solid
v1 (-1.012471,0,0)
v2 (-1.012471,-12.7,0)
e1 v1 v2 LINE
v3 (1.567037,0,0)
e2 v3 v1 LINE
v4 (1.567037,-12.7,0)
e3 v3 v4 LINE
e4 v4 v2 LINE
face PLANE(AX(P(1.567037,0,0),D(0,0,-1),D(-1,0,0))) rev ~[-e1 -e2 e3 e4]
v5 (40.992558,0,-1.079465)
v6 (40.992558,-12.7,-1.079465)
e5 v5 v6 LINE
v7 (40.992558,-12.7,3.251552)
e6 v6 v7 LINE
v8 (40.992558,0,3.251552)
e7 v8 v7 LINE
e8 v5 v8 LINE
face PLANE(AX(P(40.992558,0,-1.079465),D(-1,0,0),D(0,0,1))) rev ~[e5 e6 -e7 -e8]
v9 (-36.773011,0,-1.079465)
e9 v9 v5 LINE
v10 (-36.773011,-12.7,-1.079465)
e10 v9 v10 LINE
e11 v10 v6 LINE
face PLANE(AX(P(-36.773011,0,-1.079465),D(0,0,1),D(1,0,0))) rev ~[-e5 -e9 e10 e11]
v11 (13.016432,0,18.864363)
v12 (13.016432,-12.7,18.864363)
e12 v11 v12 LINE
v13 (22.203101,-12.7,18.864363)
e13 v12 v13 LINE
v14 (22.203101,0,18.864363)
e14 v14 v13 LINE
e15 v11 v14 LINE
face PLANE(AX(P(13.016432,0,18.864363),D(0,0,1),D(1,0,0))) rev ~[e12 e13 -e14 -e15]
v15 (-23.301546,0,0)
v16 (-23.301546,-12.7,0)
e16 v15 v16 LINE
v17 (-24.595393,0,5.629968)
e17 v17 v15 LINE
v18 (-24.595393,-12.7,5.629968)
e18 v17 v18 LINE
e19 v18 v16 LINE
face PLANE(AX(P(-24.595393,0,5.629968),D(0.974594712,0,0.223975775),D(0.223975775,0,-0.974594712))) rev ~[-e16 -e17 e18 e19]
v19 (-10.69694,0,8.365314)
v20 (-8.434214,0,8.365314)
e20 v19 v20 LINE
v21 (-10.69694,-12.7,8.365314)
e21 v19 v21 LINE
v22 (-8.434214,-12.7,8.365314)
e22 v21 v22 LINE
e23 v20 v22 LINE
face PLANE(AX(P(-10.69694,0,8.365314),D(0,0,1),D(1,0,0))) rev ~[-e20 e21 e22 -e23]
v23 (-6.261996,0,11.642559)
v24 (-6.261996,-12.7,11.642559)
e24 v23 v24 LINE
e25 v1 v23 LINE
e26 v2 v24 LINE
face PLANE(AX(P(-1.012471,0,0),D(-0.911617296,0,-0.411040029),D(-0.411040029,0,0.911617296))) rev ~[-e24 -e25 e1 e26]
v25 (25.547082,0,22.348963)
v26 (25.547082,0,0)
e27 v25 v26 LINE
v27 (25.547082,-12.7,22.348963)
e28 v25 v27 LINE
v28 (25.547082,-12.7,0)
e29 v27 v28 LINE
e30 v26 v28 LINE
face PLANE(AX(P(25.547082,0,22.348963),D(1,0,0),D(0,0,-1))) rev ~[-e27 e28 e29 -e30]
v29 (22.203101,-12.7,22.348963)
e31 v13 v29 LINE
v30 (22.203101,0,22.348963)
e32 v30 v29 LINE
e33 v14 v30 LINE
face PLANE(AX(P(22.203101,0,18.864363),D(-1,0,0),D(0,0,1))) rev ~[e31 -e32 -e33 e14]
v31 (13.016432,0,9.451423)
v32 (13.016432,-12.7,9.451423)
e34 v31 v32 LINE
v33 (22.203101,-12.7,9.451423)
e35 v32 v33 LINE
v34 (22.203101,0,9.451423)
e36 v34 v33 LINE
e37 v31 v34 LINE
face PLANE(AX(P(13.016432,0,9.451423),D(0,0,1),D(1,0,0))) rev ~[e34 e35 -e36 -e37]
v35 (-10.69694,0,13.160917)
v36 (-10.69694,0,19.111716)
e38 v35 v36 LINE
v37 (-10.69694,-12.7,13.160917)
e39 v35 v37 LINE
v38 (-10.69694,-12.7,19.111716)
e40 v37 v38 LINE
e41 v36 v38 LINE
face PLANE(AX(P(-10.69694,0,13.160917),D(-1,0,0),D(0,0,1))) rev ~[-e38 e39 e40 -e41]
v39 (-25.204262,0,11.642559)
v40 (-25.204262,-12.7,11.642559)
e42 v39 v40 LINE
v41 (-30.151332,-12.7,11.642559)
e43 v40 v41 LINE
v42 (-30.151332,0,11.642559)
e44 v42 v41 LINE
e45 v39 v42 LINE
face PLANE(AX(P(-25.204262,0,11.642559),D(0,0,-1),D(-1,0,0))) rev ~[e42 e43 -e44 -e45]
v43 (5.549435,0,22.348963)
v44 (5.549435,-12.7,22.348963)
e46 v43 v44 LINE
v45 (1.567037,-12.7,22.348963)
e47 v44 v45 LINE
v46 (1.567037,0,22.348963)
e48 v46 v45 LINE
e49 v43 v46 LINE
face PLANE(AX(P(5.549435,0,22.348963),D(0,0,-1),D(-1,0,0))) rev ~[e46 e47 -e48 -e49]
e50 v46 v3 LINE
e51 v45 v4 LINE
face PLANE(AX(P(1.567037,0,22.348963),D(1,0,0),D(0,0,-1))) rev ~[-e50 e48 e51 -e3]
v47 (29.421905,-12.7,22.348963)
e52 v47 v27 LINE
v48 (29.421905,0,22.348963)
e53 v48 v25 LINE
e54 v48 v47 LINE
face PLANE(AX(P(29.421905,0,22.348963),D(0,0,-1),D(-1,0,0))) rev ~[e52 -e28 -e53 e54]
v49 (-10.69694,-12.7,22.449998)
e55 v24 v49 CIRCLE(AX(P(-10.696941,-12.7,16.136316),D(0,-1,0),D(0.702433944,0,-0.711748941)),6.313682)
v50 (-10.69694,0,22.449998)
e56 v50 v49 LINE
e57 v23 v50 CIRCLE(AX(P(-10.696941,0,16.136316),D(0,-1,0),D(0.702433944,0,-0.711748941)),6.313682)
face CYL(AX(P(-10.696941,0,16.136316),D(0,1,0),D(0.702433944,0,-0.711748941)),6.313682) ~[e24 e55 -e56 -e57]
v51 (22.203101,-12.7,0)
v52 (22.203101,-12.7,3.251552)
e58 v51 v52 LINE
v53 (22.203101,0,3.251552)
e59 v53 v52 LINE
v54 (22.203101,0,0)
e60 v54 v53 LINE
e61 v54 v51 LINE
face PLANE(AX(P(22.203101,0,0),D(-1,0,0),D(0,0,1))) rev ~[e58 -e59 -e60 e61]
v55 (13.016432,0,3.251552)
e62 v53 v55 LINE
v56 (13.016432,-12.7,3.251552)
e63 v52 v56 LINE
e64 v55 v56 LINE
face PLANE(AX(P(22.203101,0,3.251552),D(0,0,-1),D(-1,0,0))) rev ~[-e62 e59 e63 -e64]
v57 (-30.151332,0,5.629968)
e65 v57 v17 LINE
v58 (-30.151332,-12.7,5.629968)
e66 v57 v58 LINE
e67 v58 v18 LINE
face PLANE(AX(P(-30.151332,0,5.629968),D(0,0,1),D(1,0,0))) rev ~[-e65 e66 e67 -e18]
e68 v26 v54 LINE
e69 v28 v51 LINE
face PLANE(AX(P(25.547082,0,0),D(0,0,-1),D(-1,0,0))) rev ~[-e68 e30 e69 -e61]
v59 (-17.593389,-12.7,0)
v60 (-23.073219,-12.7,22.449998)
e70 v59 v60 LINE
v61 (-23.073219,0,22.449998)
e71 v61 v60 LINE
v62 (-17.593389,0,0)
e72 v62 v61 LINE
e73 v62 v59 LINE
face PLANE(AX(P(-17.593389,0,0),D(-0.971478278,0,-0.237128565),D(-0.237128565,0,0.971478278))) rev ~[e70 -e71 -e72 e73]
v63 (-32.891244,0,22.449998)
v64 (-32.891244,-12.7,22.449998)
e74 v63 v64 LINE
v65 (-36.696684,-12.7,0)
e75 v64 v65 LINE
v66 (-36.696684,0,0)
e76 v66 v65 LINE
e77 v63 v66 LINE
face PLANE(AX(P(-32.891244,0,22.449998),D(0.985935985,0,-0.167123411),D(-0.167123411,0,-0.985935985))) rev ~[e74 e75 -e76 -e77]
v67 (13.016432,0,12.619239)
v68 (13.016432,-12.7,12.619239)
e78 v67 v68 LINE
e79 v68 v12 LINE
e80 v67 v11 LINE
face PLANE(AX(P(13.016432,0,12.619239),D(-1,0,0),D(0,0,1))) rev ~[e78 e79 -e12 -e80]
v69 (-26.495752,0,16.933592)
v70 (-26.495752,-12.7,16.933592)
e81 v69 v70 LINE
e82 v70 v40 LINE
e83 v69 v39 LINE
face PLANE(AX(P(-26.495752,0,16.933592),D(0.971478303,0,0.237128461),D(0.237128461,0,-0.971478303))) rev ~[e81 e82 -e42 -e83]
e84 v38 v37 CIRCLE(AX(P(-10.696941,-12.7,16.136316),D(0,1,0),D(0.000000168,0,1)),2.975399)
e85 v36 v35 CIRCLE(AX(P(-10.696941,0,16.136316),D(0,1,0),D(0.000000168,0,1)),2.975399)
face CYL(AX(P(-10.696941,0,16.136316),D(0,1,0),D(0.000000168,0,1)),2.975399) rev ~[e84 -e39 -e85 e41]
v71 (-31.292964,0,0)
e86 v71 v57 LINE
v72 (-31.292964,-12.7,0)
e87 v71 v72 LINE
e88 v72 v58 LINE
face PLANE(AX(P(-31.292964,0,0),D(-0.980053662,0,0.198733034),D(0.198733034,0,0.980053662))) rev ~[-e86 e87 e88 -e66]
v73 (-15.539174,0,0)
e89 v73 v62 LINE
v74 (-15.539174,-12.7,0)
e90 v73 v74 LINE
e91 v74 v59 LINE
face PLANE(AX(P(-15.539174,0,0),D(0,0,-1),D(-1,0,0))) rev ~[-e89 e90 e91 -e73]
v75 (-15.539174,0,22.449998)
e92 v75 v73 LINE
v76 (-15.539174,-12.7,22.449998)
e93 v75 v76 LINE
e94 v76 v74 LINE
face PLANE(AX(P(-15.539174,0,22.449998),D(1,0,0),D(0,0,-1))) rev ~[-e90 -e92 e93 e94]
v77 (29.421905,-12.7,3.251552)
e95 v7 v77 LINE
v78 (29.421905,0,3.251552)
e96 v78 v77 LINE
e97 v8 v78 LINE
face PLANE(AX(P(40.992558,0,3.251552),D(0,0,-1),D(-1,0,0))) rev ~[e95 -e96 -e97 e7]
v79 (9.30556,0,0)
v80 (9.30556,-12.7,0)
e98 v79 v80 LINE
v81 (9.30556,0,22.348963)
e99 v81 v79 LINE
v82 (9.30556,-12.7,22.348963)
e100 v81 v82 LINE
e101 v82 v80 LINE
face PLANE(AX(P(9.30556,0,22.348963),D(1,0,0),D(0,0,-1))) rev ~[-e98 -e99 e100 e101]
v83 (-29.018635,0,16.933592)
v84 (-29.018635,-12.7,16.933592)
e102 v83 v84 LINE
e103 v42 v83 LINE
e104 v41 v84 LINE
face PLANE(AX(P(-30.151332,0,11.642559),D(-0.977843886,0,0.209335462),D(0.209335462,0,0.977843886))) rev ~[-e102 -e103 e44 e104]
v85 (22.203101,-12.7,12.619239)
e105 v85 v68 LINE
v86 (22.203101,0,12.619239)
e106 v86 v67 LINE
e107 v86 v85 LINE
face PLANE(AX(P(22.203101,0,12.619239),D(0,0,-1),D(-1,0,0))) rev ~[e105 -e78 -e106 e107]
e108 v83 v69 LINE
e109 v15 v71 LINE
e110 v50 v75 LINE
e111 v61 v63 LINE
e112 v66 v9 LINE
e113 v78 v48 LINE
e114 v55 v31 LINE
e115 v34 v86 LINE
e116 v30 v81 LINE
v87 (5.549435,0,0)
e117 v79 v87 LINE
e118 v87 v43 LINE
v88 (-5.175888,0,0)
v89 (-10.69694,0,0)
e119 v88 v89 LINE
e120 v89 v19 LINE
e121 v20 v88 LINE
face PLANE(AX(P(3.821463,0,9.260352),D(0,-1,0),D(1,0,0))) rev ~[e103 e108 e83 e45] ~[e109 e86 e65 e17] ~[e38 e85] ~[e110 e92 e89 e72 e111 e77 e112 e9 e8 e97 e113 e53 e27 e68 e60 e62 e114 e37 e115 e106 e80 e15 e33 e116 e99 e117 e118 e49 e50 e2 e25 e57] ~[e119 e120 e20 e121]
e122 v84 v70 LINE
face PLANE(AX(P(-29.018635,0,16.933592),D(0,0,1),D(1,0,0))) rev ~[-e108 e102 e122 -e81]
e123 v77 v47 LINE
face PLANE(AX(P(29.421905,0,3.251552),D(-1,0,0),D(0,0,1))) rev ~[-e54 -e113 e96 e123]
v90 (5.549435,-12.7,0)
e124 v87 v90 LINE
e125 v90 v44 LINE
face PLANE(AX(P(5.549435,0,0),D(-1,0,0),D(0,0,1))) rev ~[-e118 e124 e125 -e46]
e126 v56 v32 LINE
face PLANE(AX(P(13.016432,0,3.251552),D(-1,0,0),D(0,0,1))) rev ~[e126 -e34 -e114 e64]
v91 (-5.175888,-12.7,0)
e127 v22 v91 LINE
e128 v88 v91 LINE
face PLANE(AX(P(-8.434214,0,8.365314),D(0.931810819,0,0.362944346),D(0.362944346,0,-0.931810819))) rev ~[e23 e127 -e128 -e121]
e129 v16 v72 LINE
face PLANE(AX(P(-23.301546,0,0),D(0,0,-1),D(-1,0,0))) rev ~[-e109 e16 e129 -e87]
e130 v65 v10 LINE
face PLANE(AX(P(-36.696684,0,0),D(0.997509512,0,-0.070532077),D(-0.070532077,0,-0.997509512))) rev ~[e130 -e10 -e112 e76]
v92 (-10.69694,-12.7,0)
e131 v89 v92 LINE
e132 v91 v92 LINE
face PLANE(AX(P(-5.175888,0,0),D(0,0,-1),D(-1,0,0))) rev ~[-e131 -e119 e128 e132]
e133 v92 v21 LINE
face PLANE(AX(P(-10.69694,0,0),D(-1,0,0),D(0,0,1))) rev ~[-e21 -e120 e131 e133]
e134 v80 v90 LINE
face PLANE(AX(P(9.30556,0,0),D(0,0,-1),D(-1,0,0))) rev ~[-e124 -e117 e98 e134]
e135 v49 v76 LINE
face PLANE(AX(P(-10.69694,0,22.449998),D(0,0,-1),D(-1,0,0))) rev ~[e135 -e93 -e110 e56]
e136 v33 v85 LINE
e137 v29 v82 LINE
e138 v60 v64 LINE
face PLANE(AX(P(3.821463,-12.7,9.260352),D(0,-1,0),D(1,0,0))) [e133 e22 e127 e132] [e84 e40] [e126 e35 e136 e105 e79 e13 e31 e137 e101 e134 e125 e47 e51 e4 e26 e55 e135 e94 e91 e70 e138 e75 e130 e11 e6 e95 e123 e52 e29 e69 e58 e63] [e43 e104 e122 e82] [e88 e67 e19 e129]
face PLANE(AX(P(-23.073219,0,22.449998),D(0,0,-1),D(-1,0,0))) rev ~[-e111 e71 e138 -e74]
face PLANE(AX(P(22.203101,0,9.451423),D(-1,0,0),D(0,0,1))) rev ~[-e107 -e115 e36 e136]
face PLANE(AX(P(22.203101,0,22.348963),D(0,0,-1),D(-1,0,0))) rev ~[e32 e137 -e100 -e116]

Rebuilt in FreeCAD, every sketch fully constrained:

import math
import FreeCAD as App
import Part
import Sketcher
from FreeCAD import Vector
Q = App.Units.Quantity

doc = App.newDocument("Part")
body = doc.addObject("PartDesign::Body", "Body")

# Sketch on XZ plane
sketch1 = body.newObject("Sketcher::SketchObject", "Sketch")
sketch1.AttachmentSupport = (doc.getObject("XZ_Plane"), [""])
sketch1.MapMode = "FlatFace"
sketch1.addGeometry([
    Part.LineSegment(Vector(-32.9, 22.4, 0), Vector(-36.7, 0, 0)),  # 0
    Part.LineSegment(Vector(-36.7, 0, 0), Vector(-36.8, -1.1, 0)),  # 1
    Part.LineSegment(Vector(-36.8, -1.1, 0), Vector(41, -1.1, 0)),  # 2
    Part.LineSegment(Vector(41, -1.1, 0), Vector(41, 3.3, 0)),  # 3
    Part.LineSegment(Vector(41, 3.3, 0), Vector(29.4, 3.3, 0)),  # 4
    Part.LineSegment(Vector(29.4, 3.3, 0), Vector(29.4, 22.3, 0)),  # 5
    Part.LineSegment(Vector(29.4, 22.3, 0), Vector(25.5, 22.3, 0)),  # 6
    Part.LineSegment(Vector(25.5, 22.3, 0), Vector(25.5, 0, 0)),  # 7
    Part.LineSegment(Vector(25.5, 0, 0), Vector(22.2, 0, 0)),  # 8
    Part.LineSegment(Vector(22.2, 0, 0), Vector(22.2, 3.3, 0)),  # 9
    Part.LineSegment(Vector(22.2, 3.3, 0), Vector(13, 3.3, 0)),  # 10
    Part.LineSegment(Vector(13, 3.3, 0), Vector(13, 9.5, 0)),  # 11
    Part.LineSegment(Vector(13, 9.5, 0), Vector(22.2, 9.5, 0)),  # 12
    Part.LineSegment(Vector(22.2, 9.5, 0), Vector(22.2, 12.6, 0)),  # 13
    Part.LineSegment(Vector(22.2, 12.6, 0), Vector(13, 12.6, 0)),  # 14
    Part.LineSegment(Vector(13, 12.6, 0), Vector(13, 18.9, 0)),  # 15
    Part.LineSegment(Vector(13, 18.9, 0), Vector(22.2, 18.9, 0)),  # 16
    Part.LineSegment(Vector(22.2, 18.9, 0), Vector(22.2, 22.3, 0)),  # 17
    Part.LineSegment(Vector(22.2, 22.3, 0), Vector(9.3, 22.3, 0)),  # 18
    Part.LineSegment(Vector(9.3, 22.3, 0), Vector(9.3, 0, 0)),  # 19
    Part.LineSegment(Vector(9.3, 0, 0), Vector(5.5, 0, 0)),  # 20
    Part.LineSegment(Vector(5.5, 0, 0), Vector(5.5, 22.3, 0)),  # 21
    Part.LineSegment(Vector(5.5, 22.3, 0), Vector(1.6, 22.3, 0)),  # 22
    Part.LineSegment(Vector(1.6, 22.3, 0), Vector(1.6, 0, 0)),  # 23
    Part.LineSegment(Vector(1.6, 0, 0), Vector(-1, 0, 0)),  # 24
    Part.LineSegment(Vector(-1, 0, 0), Vector(-6.3, 11.6, 0)),  # 25
    Part.ArcOfCircle(Part.Circle(Vector(-10.7, 16.1, 0), Vector(0, 0, 1), 6.3), math.radians(-45), math.radians(90)),  # 26
    Part.LineSegment(Vector(-10.7, 22.4, 0), Vector(-15.5, 22.4, 0)),  # 27
    Part.LineSegment(Vector(-15.5, 22.4, 0), Vector(-15.5, 0, 0)),  # 28
    Part.LineSegment(Vector(-15.5, 0, 0), Vector(-17.6, 0, 0)),  # 29
    Part.LineSegment(Vector(-17.6, 0, 0), Vector(-23.1, 22.4, 0)),  # 30
    Part.LineSegment(Vector(-23.1, 22.4, 0), Vector(-32.9, 22.4, 0)),  # 31
    Part.LineSegment(Vector(-30.2, 5.6, 0), Vector(-24.6, 5.6, 0)),  # 32
    Part.LineSegment(Vector(-24.6, 5.6, 0), Vector(-23.3, 0, 0)),  # 33
    Part.LineSegment(Vector(-23.3, 0, 0), Vector(-31.3, 0, 0)),  # 34
    Part.LineSegment(Vector(-31.3, 0, 0), Vector(-30.2, 5.6, 0)),  # 35
    Part.LineSegment(Vector(-8.4, 8.4, 0), Vector(-5.2, 0, 0)),  # 36
    Part.LineSegment(Vector(-5.2, 0, 0), Vector(-10.7, 0, 0)),  # 37
    Part.LineSegment(Vector(-10.7, 0, 0), Vector(-10.7, 8.4, 0)),  # 38
    Part.LineSegment(Vector(-10.7, 8.4, 0), Vector(-8.4, 8.4, 0)),  # 39
    Part.LineSegment(Vector(-26.5, 16.9, 0), Vector(-25.2, 11.6, 0)),  # 40
    Part.LineSegment(Vector(-25.2, 11.6, 0), Vector(-30.2, 11.6, 0)),  # 41
    Part.LineSegment(Vector(-30.2, 11.6, 0), Vector(-29, 16.9, 0)),  # 42
    Part.LineSegment(Vector(-29, 16.9, 0), Vector(-26.5, 16.9, 0)),  # 43
    Part.LineSegment(Vector(-10.7, 13.2, 0), Vector(-10.7, 19.1, 0)),  # 44
    Part.ArcOfCircle(Part.Circle(Vector(-10.7, 16.1, 0), Vector(0, 0, 1), 3), math.radians(-90), math.radians(90)),  # 45
], False)
sketch1.addConstraint([
    Sketcher.Constraint("Coincident", 0, 2, 1, 1),
    Sketcher.Constraint("Coincident", 1, 2, 2, 1),
    Sketcher.Constraint("Coincident", 2, 2, 3, 1),
    Sketcher.Constraint("Coincident", 3, 2, 4, 1),
    Sketcher.Constraint("Coincident", 4, 2, 5, 1),
    Sketcher.Constraint("Coincident", 5, 2, 6, 1),
    Sketcher.Constraint("Coincident", 6, 2, 7, 1),
    Sketcher.Constraint("Coincident", 7, 2, 8, 1),
    Sketcher.Constraint("Coincident", 8, 2, 9, 1),
    Sketcher.Constraint("Coincident", 9, 2, 10, 1),
    Sketcher.Constraint("Coincident", 10, 2, 11, 1),
    Sketcher.Constraint("Coincident", 11, 2, 12, 1),
    Sketcher.Constraint("Coincident", 12, 2, 13, 1),
    Sketcher.Constraint("Coincident", 13, 2, 14, 1),
    Sketcher.Constraint("Coincident", 14, 2, 15, 1),
    Sketcher.Constraint("Coincident", 15, 2, 16, 1),
    Sketcher.Constraint("Coincident", 16, 2, 17, 1),
    Sketcher.Constraint("Coincident", 17, 2, 18, 1),
    Sketcher.Constraint("Coincident", 18, 2, 19, 1),
    Sketcher.Constraint("Coincident", 19, 2, 20, 1),
    Sketcher.Constraint("Coincident", 20, 2, 21, 1),
    Sketcher.Constraint("Coincident", 21, 2, 22, 1),
    Sketcher.Constraint("Coincident", 22, 2, 23, 1),
    Sketcher.Constraint("Coincident", 23, 2, 24, 1),
    Sketcher.Constraint("Coincident", 24, 2, 25, 1),
    Sketcher.Constraint("Coincident", 25, 2, 26, 1),
    Sketcher.Constraint("Tangent", 26, 2, 27, 1),
    Sketcher.Constraint("Coincident", 27, 2, 28, 1),
    Sketcher.Constraint("Coincident", 28, 2, 29, 1),
    Sketcher.Constraint("Coincident", 29, 2, 30, 1),
    Sketcher.Constraint("Coincident", 30, 2, 31, 1),
    Sketcher.Constraint("Coincident", 31, 2, 0, 1),
    Sketcher.Constraint("Coincident", 32, 2, 33, 1),
    Sketcher.Constraint("Coincident", 33, 2, 34, 1),
    Sketcher.Constraint("Coincident", 34, 2, 35, 1),
    Sketcher.Constraint("Coincident", 35, 2, 32, 1),
    Sketcher.Constraint("Coincident", 36, 2, 37, 1),
    Sketcher.Constraint("Coincident", 37, 2, 38, 1),
    Sketcher.Constraint("Coincident", 38, 2, 39, 1),
    Sketcher.Constraint("Coincident", 39, 2, 36, 1),
    Sketcher.Constraint("Coincident", 40, 2, 41, 1),
    Sketcher.Constraint("Coincident", 41, 2, 42, 1),
    Sketcher.Constraint("Coincident", 42, 2, 43, 1),
    Sketcher.Constraint("Coincident", 43, 2, 40, 1),
    Sketcher.Constraint("Coincident", 44, 1, 45, 1),
    Sketcher.Constraint("Coincident", 45, 2, 44, 2),
    Sketcher.Constraint("Horizontal", 2),
    Sketcher.Constraint("Vertical", 3),
    Sketcher.Constraint("Horizontal", 4),
    Sketcher.Constraint("Vertical", 5),
    Sketcher.Constraint("Horizontal", 6),
    Sketcher.Constraint("Vertical", 7),
    Sketcher.Constraint("Horizontal", 8),
    Sketcher.Constraint("Vertical", 9),
    Sketcher.Constraint("Horizontal", 10),
    Sketcher.Constraint("Vertical", 11),
    Sketcher.Constraint("Horizontal", 12),
    Sketcher.Constraint("Vertical", 13),
    Sketcher.Constraint("Horizontal", 14),
    Sketcher.Constraint("Vertical", 15),
    Sketcher.Constraint("Horizontal", 16),
    Sketcher.Constraint("Vertical", 17),
    Sketcher.Constraint("Horizontal", 18),
    Sketcher.Constraint("Vertical", 19),
    Sketcher.Constraint("Horizontal", 20),
    Sketcher.Constraint("Vertical", 21),
    Sketcher.Constraint("Horizontal", 22),
    Sketcher.Constraint("Vertical", 23),
    Sketcher.Constraint("Horizontal", 24),
    Sketcher.Constraint("Horizontal", 27),
    Sketcher.Constraint("Vertical", 28),
    Sketcher.Constraint("Horizontal", 29),
    Sketcher.Constraint("Horizontal", 31),
    Sketcher.Constraint("Horizontal", 32),
    Sketcher.Constraint("Horizontal", 34),
    Sketcher.Constraint("Horizontal", 37),
    Sketcher.Constraint("Vertical", 38),
    Sketcher.Constraint("Horizontal", 39),
    Sketcher.Constraint("Horizontal", 41),
    Sketcher.Constraint("Horizontal", 43),
    Sketcher.Constraint("Vertical", 44),
    Sketcher.Constraint("Coincident", 45, 3, 26, 3),
    Sketcher.Constraint("PointOnObject", 0, 2, -1),
    Sketcher.Constraint("PointOnObject", 7, 2, -1),
    Sketcher.Constraint("PointOnObject", 19, 2, -1),
    Sketcher.Constraint("PointOnObject", 23, 2, -1),
    Sketcher.Constraint("PointOnObject", 28, 2, -1),
    Sketcher.Constraint("PointOnObject", 33, 2, -1),
    Sketcher.Constraint("PointOnObject", 36, 2, -1),
    Sketcher.Constraint("Parallel", 30, 40),
    Sketcher.Constraint("Horizontal", 4, 2, 9, 2),
    Sketcher.Constraint("Horizontal", 6, 2, 17, 2),
    Sketcher.Constraint("Horizontal", 18, 2, 21, 2),
    Sketcher.Constraint("Horizontal", 27, 2, 30, 2),
    Sketcher.Constraint("Horizontal", 25, 2, 40, 2),
    Sketcher.Constraint("Vertical", 9, 2, 12, 2),
    Sketcher.Constraint("Vertical", 11, 2, 14, 2),
    Sketcher.Constraint("Vertical", 13, 2, 16, 2),
    Sketcher.Constraint("Vertical", 26, 2, 37, 2),
    Sketcher.Constraint("Vertical", 35, 2, 41, 2),
    Sketcher.Constraint("Vertical", 38, 2, 44, 1),
    Sketcher.Constraint("Radius", 45, Q("2.975399 mm")),
    Sketcher.Constraint("DistanceY", 17, 1, 17, 2, Q("3.4846 mm")),
    Sketcher.Constraint("DistanceY", 28, 2, 28, 1, Q("22.449998 mm")),
    Sketcher.Constraint("Radius", 26, Q("6.313682 mm")),
    Sketcher.Constraint("DistanceX", 2, 1, 2, 2, Q("77.765569 mm")),
    Sketcher.Constraint("DistanceX", 8, 2, 8, 1, Q("3.343981 mm")),
    Sketcher.Constraint("DistanceX", 10, 2, 10, 1, Q("9.186669 mm")),
    Sketcher.Constraint("DistanceX", 18, 2, 18, 1, Q("12.897541 mm")),
    Sketcher.Constraint("DistanceX", 32, 1, 32, 2, Q("5.555939 mm")),
    Sketcher.Constraint("DistanceX", 34, 2, 34, 1, Q("7.991418 mm")),
    Sketcher.Constraint("DistanceX", 41, 2, 41, 1, Q("4.94707 mm")),
    Sketcher.Constraint("DistanceY", 5, 1, 5, 2, Q("19.097411 mm")),
    Sketcher.Constraint("DistanceY", 11, 1, 11, 2, Q("6.199871 mm")),
    Sketcher.Constraint("DistanceX", -1, 1, 8, 2, Q("22.203101 mm")),
    Sketcher.Constraint("DistanceX", 26, 3, 2, 2, Q("51.689499 mm")),
    Sketcher.Constraint("DistanceY", 38, 2, 26, 3, Q("7.771002 mm")),
    Sketcher.Constraint("Distance", 0, Q("22.770239 mm")),
    Sketcher.Constraint("Distance", 1, Q("1.08216 mm")),
    Sketcher.Constraint("Distance", 30, Q("23.10911 mm")),
    Sketcher.Constraint("Distance", 35, Q("5.744551 mm")),
    Sketcher.Constraint("Distance", 36, Q("8.977481 mm")),
    Sketcher.Constraint("DistanceX", 4, 2, 4, 1, Q("11.570653 mm")),
    Sketcher.Constraint("DistanceX", 6, 2, 6, 1, Q("3.874823 mm")),
    Sketcher.Constraint("DistanceX", 20, 2, 20, 1, Q("3.756125 mm")),
    Sketcher.Constraint("DistanceX", 22, 2, 22, 1, Q("3.982398 mm")),
    Sketcher.Constraint("DistanceX", 24, 2, 24, 1, Q("2.579508 mm")),
    Sketcher.Constraint("DistanceX", 27, 2, 27, 1, Q("4.842234 mm")),
    Sketcher.Constraint("DistanceX", 29, 2, 29, 1, Q("2.054215 mm")),
    Sketcher.Constraint("DistanceX", 31, 2, 31, 1, Q("9.818025 mm")),
    Sketcher.Constraint("DistanceX", 37, 2, 37, 1, Q("5.521052 mm")),
    Sketcher.Constraint("DistanceX", 43, 1, 43, 2, Q("2.522883 mm")),
    Sketcher.Constraint("DistanceY", 3, 1, 3, 2, Q("4.331017 mm")),
    Sketcher.Constraint("DistanceY", 13, 1, 13, 2, Q("3.167816 mm")),
    Sketcher.Constraint("DistanceY", -1, 1, 25, 2, Q("11.642559 mm")),
    Sketcher.Constraint("DistanceX", 35, 2, -1, 1, Q("30.151332 mm")),
    Sketcher.Constraint("DistanceX", 43, 2, -1, 1, Q("26.495752 mm")),
    Sketcher.Constraint("DistanceY", 32, 2, 30, 2, Q("16.82003 mm")),
])
pad1 = body.newObject("PartDesign::Pad", "Pad")
pad1.Profile = sketch1
pad1.Length = Q("0.5 in")

doc.recompute()
